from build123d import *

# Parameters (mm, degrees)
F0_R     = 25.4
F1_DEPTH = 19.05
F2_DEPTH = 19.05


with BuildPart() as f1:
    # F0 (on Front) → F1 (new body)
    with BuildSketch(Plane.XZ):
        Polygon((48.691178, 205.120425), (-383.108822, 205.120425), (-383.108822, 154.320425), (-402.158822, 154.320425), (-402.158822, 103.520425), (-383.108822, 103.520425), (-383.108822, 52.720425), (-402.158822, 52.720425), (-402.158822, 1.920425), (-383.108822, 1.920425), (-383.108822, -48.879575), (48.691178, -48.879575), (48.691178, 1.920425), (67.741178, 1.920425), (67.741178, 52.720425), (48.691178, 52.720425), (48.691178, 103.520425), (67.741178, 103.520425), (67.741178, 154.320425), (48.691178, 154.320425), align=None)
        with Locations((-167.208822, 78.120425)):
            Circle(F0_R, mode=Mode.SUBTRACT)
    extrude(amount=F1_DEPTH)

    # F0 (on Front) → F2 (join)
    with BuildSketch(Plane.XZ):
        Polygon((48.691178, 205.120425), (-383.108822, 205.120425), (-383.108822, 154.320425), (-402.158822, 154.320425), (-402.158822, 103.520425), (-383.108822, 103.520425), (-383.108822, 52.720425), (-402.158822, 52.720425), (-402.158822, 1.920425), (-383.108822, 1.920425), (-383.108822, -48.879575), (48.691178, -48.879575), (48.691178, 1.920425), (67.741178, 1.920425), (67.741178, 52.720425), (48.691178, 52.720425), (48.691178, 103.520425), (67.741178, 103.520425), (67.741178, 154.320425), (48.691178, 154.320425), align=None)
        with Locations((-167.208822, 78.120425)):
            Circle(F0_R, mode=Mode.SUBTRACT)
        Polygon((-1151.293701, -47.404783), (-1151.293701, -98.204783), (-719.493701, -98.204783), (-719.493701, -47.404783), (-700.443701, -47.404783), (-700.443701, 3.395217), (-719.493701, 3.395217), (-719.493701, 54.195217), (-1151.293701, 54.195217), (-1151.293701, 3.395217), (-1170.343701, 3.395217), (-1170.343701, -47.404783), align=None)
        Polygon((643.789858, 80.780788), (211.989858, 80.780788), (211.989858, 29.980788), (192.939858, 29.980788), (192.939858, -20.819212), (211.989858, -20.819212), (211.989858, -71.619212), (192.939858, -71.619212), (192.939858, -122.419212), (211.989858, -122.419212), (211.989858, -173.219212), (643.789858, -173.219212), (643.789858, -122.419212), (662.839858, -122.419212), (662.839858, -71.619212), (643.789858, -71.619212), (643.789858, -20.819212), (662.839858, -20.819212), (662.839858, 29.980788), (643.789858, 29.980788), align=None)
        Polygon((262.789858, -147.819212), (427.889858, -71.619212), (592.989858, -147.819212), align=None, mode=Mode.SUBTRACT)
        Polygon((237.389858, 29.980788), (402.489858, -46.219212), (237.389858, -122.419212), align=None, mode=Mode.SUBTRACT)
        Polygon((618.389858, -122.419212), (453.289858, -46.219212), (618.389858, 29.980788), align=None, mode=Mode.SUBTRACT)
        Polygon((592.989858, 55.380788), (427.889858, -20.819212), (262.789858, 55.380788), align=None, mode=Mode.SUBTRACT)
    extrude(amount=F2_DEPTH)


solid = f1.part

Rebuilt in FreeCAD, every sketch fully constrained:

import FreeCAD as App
import Part
import Sketcher

V = App.Vector
Q = App.Units.Quantity

doc = App.newDocument("Part")
params = doc.addObject("Spreadsheet::Sheet", "Params")
for row, (alias, value) in enumerate([
    ("sketch1_diameter", "2 in"),
    ("sketch1_width", "17 in"),
    ("sketch1_height", "2 in"),
    ("sketch1_width2", "0.75 in"),
    ("pad1_length", "0.75 in"),
    ("sketch2_diameter", "2 in"),
    ("sketch2_width", "17 in"),
    ("sketch2_width2", "13 in"),
    ("sketch2_height", "2 in"),
    ("sketch2_width3", "0.75 in"),
    ("pad2_length", "0.75 in"),
], start=1):
    params.set(f"A{row}", alias)
    params.set(f"B{row}", "=" + value)
    params.setAlias(f"B{row}", alias)

body = doc.addObject("PartDesign::Body", "Body")
body.AllowCompound = True

# Sketch on XZ plane
sketch1 = body.newObject("Sketcher::SketchObject", "Sketch")
sketch1.AttachmentSupport = (doc.getObject("XZ_Plane"), [""])
sketch1.MapMode = "FlatFace"
sketch1.addGeometry([
    Part.LineSegment(V(49, 205, 0), V(-383, 205, 0)),  # 0
    Part.LineSegment(V(-383, 205, 0), V(-383, 154, 0)),  # 1
    Part.LineSegment(V(-383, 154, 0), V(-402, 154, 0)),  # 2
    Part.LineSegment(V(-402, 154, 0), V(-402, 104, 0)),  # 3
    Part.LineSegment(V(-402, 104, 0), V(-383, 104, 0)),  # 4
    Part.LineSegment(V(-383, 104, 0), V(-383, 53, 0)),  # 5
    Part.LineSegment(V(-383, 53, 0), V(-402, 53, 0)),  # 6
    Part.LineSegment(V(-402, 53, 0), V(-402, 2, 0)),  # 7
    Part.LineSegment(V(-402, 2, 0), V(-383, 2, 0)),  # 8
    Part.LineSegment(V(-383, 2, 0), V(-383, -49, 0)),  # 9
    Part.LineSegment(V(-383, -49, 0), V(49, -49, 0)),  # 10
    Part.LineSegment(V(49, -49, 0), V(49, 2, 0)),  # 11
    Part.LineSegment(V(49, 2, 0), V(68, 2, 0)),  # 12
    Part.LineSegment(V(68, 2, 0), V(68, 53, 0)),  # 13
    Part.LineSegment(V(68, 53, 0), V(49, 53, 0)),  # 14
    Part.LineSegment(V(49, 53, 0), V(49, 104, 0)),  # 15
    Part.LineSegment(V(49, 104, 0), V(68, 104, 0)),  # 16
    Part.LineSegment(V(68, 104, 0), V(68, 154, 0)),  # 17
    Part.LineSegment(V(68, 154, 0), V(49, 154, 0)),  # 18
    Part.LineSegment(V(49, 154, 0), V(49, 205, 0)),  # 19
    Part.Circle(V(-167, 78, 0), V(0, 0, 1), 25),  # 20
], False)
sketch1.addConstraint([
    Sketcher.Constraint("Coincident", 0, 2, 1, 1),
    Sketcher.Constraint("Coincident", 1, 2, 2, 1),
    Sketcher.Constraint("Coincident", 2, 2, 3, 1),
    Sketcher.Constraint("Coincident", 3, 2, 4, 1),
    Sketcher.Constraint("Coincident", 4, 2, 5, 1),
    Sketcher.Constraint("Coincident", 5, 2, 6, 1),
    Sketcher.Constraint("Coincident", 6, 2, 7, 1),
    Sketcher.Constraint("Coincident", 7, 2, 8, 1),
    Sketcher.Constraint("Coincident", 8, 2, 9, 1),
    Sketcher.Constraint("Coincident", 9, 2, 10, 1),
    Sketcher.Constraint("Coincident", 10, 2, 11, 1),
    Sketcher.Constraint("Coincident", 11, 2, 12, 1),
    Sketcher.Constraint("Coincident", 12, 2, 13, 1),
    Sketcher.Constraint("Coincident", 13, 2, 14, 1),
    Sketcher.Constraint("Coincident", 14, 2, 15, 1),
    Sketcher.Constraint("Coincident", 15, 2, 16, 1),
    Sketcher.Constraint("Coincident", 16, 2, 17, 1),
    Sketcher.Constraint("Coincident", 17, 2, 18, 1),
    Sketcher.Constraint("Coincident", 18, 2, 19, 1),
    Sketcher.Constraint("Coincident", 19, 2, 0, 1),
    Sketcher.Constraint("Horizontal", 0),
    Sketcher.Constraint("Vertical", 1),
    Sketcher.Constraint("Horizontal", 2),
    Sketcher.Constraint("Vertical", 3),
    Sketcher.Constraint("Horizontal", 4),
    Sketcher.Constraint("Vertical", 5),
    Sketcher.Constraint("Horizontal", 6),
    Sketcher.Constraint("Vertical", 7),
    Sketcher.Constraint("Horizontal", 8),
    Sketcher.Constraint("Vertical", 9),
    Sketcher.Constraint("Horizontal", 10),
    Sketcher.Constraint("Vertical", 11),
    Sketcher.Constraint("Horizontal", 12),
    Sketcher.Constraint("Vertical", 13),
    Sketcher.Constraint("Horizontal", 14),
    Sketcher.Constraint("Vertical", 15),
    Sketcher.Constraint("Horizontal", 16),
    Sketcher.Constraint("Vertical", 17),
    Sketcher.Constraint("Horizontal", 18),
    Sketcher.Constraint("Vertical", 19),
    Sketcher.Constraint("Horizontal", 8, 2, 11, 2),
    Sketcher.Constraint("Horizontal", 6, 2, 13, 2),
    Sketcher.Constraint("Horizontal", 4, 2, 15, 2),
    Sketcher.Constraint("Horizontal", 2, 2, 17, 2),
    Sketcher.Constraint("Vertical", 1, 2, 4, 2),
    Sketcher.Constraint("Vertical", 3, 2, 6, 2),
    Sketcher.Constraint("Vertical", 5, 2, 8, 2),
    Sketcher.Constraint("Vertical", 11, 2, 14, 2),
    Sketcher.Constraint("Vertical", 13, 2, 16, 2),
    Sketcher.Constraint("Vertical", 15, 2, 18, 2),
    Sketcher.Constraint("Equal", 8, 12),
    Sketcher.Constraint("Equal", 1, 3),
    Sketcher.Constraint("Equal", 3, 5),
    Sketcher.Constraint("Equal", 5, 7),
    Sketcher.Constraint("Equal", 7, 9),
    Sketcher.Constraint("Diameter", 20, Q("2 in")),
    Sketcher.Constraint("DistanceX", 0, 2, 0, 1, Q("17 in")),
    Sketcher.Constraint("DistanceY", 1, 2, 1, 1, Q("2 in")),
    Sketcher.Constraint("DistanceY", 20, 3, 0, 2, Q("5 in")),
    Sketcher.Constraint("DistanceX", 2, 2, 2, 1, Q("0.75 in")),
    Sketcher.Constraint("DistanceX", 0, 2, 20, 3, Q("8.5 in")),
    Sketcher.Constraint("DistanceX", 20, 3, -1, 1, Q("167.208822 mm")),
    Sketcher.Constraint("DistanceY", -1, 1, 20, 3, Q("78.120425 mm")),
])
sketch1.setExpression("Constraints[55]", "Params.sketch1_diameter")
sketch1.setExpression("Constraints[56]", "Params.sketch1_width")
sketch1.setExpression("Constraints[57]", "Params.sketch1_height")
sketch1.setExpression("Constraints[59]", "Params.sketch1_width2")
pad1 = body.newObject("PartDesign::Pad", "Pad")
pad1.Profile = sketch1
pad1.setExpression("Length", "Params.pad1_length")

# Sketch on XZ plane
sketch2 = body.newObject("Sketcher::SketchObject", "Sketch001")
sketch2.AttachmentSupport = (doc.getObject("XZ_Plane"), [""])
sketch2.MapMode = "FlatFace"
sketch2.addGeometry([
    Part.LineSegment(V(49, 205, 0), V(-383, 205, 0)),  # 0
    Part.LineSegment(V(-383, 205, 0), V(-383, 154, 0)),  # 1
    Part.LineSegment(V(-383, 154, 0), V(-402, 154, 0)),  # 2
    Part.LineSegment(V(-402, 154, 0), V(-402, 104, 0)),  # 3
    Part.LineSegment(V(-402, 104, 0), V(-383, 104, 0)),  # 4
    Part.LineSegment(V(-383, 104, 0), V(-383, 53, 0)),  # 5
    Part.LineSegment(V(-383, 53, 0), V(-402, 53, 0)),  # 6
    Part.LineSegment(V(-402, 53, 0), V(-402, 2, 0)),  # 7
    Part.LineSegment(V(-402, 2, 0), V(-383, 2, 0)),  # 8
    Part.LineSegment(V(-383, 2, 0), V(-383, -49, 0)),  # 9
    Part.LineSegment(V(-383, -49, 0), V(49, -49, 0)),  # 10
    Part.LineSegment(V(49, -49, 0), V(49, 2, 0)),  # 11
    Part.LineSegment(V(49, 2, 0), V(68, 2, 0)),  # 12
    Part.LineSegment(V(68, 2, 0), V(68, 53, 0)),  # 13
    Part.LineSegment(V(68, 53, 0), V(49, 53, 0)),  # 14
    Part.LineSegment(V(49, 53, 0), V(49, 104, 0)),  # 15
    Part.LineSegment(V(49, 104, 0), V(68, 104, 0)),  # 16
    Part.LineSegment(V(68, 104, 0), V(68, 154, 0)),  # 17
    Part.LineSegment(V(68, 154, 0), V(49, 154, 0)),  # 18
    Part.LineSegment(V(49, 154, 0), V(49, 205, 0)),  # 19
    Part.Circle(V(-167, 78, 0), V(0, 0, 1), 25),  # 20
    Part.LineSegment(V(-1151, -47, 0), V(-1151, -98, 0)),  # 21
    Part.LineSegment(V(-1151, -98, 0), V(-719, -98, 0)),  # 22
    Part.LineSegment(V(-719, -98, 0), V(-719, -47, 0)),  # 23
    Part.LineSegment(V(-719, -47, 0), V(-700, -47, 0)),  # 24
    Part.LineSegment(V(-700, -47, 0), V(-700, 3, 0)),  # 25
    Part.LineSegment(V(-700, 3, 0), V(-719, 3, 0)),  # 26
    Part.LineSegment(V(-719, 3, 0), V(-719, 54, 0)),  # 27
    Part.LineSegment(V(-719, 54, 0), V(-1151, 54, 0)),  # 28
    Part.LineSegment(V(-1151, 54, 0), V(-1151, 3, 0)),  # 29
    Part.LineSegment(V(-1151, 3, 0), V(-1170, 3, 0)),  # 30
    Part.LineSegment(V(-1170, 3, 0), V(-1170, -47, 0)),  # 31
    Part.LineSegment(V(-1170, -47, 0), V(-1151, -47, 0)),  # 32
    Part.LineSegment(V(644, 81, 0), V(212, 81, 0)),  # 33
    Part.LineSegment(V(212, 81, 0), V(212, 30, 0)),  # 34
    Part.LineSegment(V(212, 30, 0), V(193, 30, 0)),  # 35
    Part.LineSegment(V(193, 30, 0), V(193, -21, 0)),  # 36
    Part.LineSegment(V(193, -21, 0), V(212, -21, 0)),  # 37
    Part.LineSegment(V(212, -21, 0), V(212, -72, 0)),  # 38
    Part.LineSegment(V(212, -72, 0), V(193, -72, 0)),  # 39
    Part.LineSegment(V(193, -72, 0), V(193, -122, 0)),  # 40
    Part.LineSegment(V(193, -122, 0), V(212, -122, 0)),  # 41
    Part.LineSegment(V(212, -122, 0), V(212, -173, 0)),  # 42
    Part.LineSegment(V(212, -173, 0), V(644, -173, 0)),  # 43
    Part.LineSegment(V(644, -173, 0), V(644, -122, 0)),  # 44
    Part.LineSegment(V(644, -122, 0), V(663, -122, 0)),  # 45
    Part.LineSegment(V(663, -122, 0), V(663, -72, 0)),  # 46
    Part.LineSegment(V(663, -72, 0), V(644, -72, 0)),  # 47
    Part.LineSegment(V(644, -72, 0), V(644, -21, 0)),  # 48
    Part.LineSegment(V(644, -21, 0), V(663, -21, 0)),  # 49
    Part.LineSegment(V(663, -21, 0), V(663, 30, 0)),  # 50
    Part.LineSegment(V(663, 30, 0), V(644, 30, 0)),  # 51
    Part.LineSegment(V(644, 30, 0), V(644, 81, 0)),  # 52
    Part.LineSegment(V(593, -148, 0), V(263, -148, 0)),  # 53
    Part.LineSegment(V(263, -148, 0), V(428, -72, 0)),  # 54
    Part.LineSegment(V(428, -72, 0), V(593, -148, 0)),  # 55
    Part.LineSegment(V(618, 30, 0), V(618, -122, 0)),  # 56
    Part.LineSegment(V(618, -122, 0), V(453, -46, 0)),  # 57
    Part.LineSegment(V(453, -46, 0), V(618, 30, 0)),  # 58
    Part.LineSegment(V(237, -122, 0), V(237, 30, 0)),  # 59
    Part.LineSegment(V(237, 30, 0), V(402, -46, 0)),  # 60
    Part.LineSegment(V(402, -46, 0), V(237, -122, 0)),  # 61
    Part.LineSegment(V(263, 55, 0), V(593, 55, 0)),  # 62
    Part.LineSegment(V(593, 55, 0), V(428, -21, 0)),  # 63
    Part.LineSegment(V(428, -21, 0), V(263, 55, 0)),  # 64
], False)
sketch2.addConstraint([
    Sketcher.Constraint("Coincident", 0, 2, 1, 1),
    Sketcher.Constraint("Coincident", 1, 2, 2, 1),
    Sketcher.Constraint("Coincident", 2, 2, 3, 1),
    Sketcher.Constraint("Coincident", 3, 2, 4, 1),
    Sketcher.Constraint("Coincident", 4, 2, 5, 1),
    Sketcher.Constraint("Coincident", 5, 2, 6, 1),
    Sketcher.Constraint("Coincident", 6, 2, 7, 1),
    Sketcher.Constraint("Coincident", 7, 2, 8, 1),
    Sketcher.Constraint("Coincident", 8, 2, 9, 1),
    Sketcher.Constraint("Coincident", 9, 2, 10, 1),
    Sketcher.Constraint("Coincident", 10, 2, 11, 1),
    Sketcher.Constraint("Coincident", 11, 2, 12, 1),
    Sketcher.Constraint("Coincident", 12, 2, 13, 1),
    Sketcher.Constraint("Coincident", 13, 2, 14, 1),
    Sketcher.Constraint("Coincident", 14, 2, 15, 1),
    Sketcher.Constraint("Coincident", 15, 2, 16, 1),
    Sketcher.Constraint("Coincident", 16, 2, 17, 1),
    Sketcher.Constraint("Coincident", 17, 2, 18, 1),
    Sketcher.Constraint("Coincident", 18, 2, 19, 1),
    Sketcher.Constraint("Coincident", 19, 2, 0, 1),
    Sketcher.Constraint("Coincident", 21, 2, 22, 1),
    Sketcher.Constraint("Coincident", 22, 2, 23, 1),
    Sketcher.Constraint("Coincident", 23, 2, 24, 1),
    Sketcher.Constraint("Coincident", 24, 2, 25, 1),
    Sketcher.Constraint("Coincident", 25, 2, 26, 1),
    Sketcher.Constraint("Coincident", 26, 2, 27, 1),
    Sketcher.Constraint("Coincident", 27, 2, 28, 1),
    Sketcher.Constraint("Coincident", 28, 2, 29, 1),
    Sketcher.Constraint("Coincident", 29, 2, 30, 1),
    Sketcher.Constraint("Coincident", 30, 2, 31, 1),
    Sketcher.Constraint("Coincident", 31, 2, 32, 1),
    Sketcher.Constraint("Coincident", 32, 2, 21, 1),
    Sketcher.Constraint("Coincident", 33, 2, 34, 1),
    Sketcher.Constraint("Coincident", 34, 2, 35, 1),
    Sketcher.Constraint("Coincident", 35, 2, 36, 1),
    Sketcher.Constraint("Coincident", 36, 2, 37, 1),
    Sketcher.Constraint("Coincident", 37, 2, 38, 1),
    Sketcher.Constraint("Coincident", 38, 2, 39, 1),
    Sketcher.Constraint("Coincident", 39, 2, 40, 1),
    Sketcher.Constraint("Coincident", 40, 2, 41, 1),
    Sketcher.Constraint("Coincident", 41, 2, 42, 1),
    Sketcher.Constraint("Coincident", 42, 2, 43, 1),
    Sketcher.Constraint("Coincident", 43, 2, 44, 1),
    Sketcher.Constraint("Coincident", 44, 2, 45, 1),
    Sketcher.Constraint("Coincident", 45, 2, 46, 1),
    Sketcher.Constraint("Coincident", 46, 2, 47, 1),
    Sketcher.Constraint("Coincident", 47, 2, 48, 1),
    Sketcher.Constraint("Coincident", 48, 2, 49, 1),
    Sketcher.Constraint("Coincident", 49, 2, 50, 1),
    Sketcher.Constraint("Coincident", 50, 2, 51, 1),
    Sketcher.Constraint("Coincident", 51, 2, 52, 1),
    Sketcher.Constraint("Coincident", 52, 2, 33, 1),
    Sketcher.Constraint("Coincident", 53, 2, 54, 1),
    Sketcher.Constraint("Coincident", 54, 2, 55, 1),
    Sketcher.Constraint("Coincident", 55, 2, 53, 1),
    Sketcher.Constraint("Coincident", 56, 2, 57, 1),
    Sketcher.Constraint("Coincident", 57, 2, 58, 1),
    Sketcher.Constraint("Coincident", 58, 2, 56, 1),
    Sketcher.Constraint("Coincident", 59, 2, 60, 1),
    Sketcher.Constraint("Coincident", 60, 2, 61, 1),
    Sketcher.Constraint("Coincident", 61, 2, 59, 1),
    Sketcher.Constraint("Coincident", 62, 2, 63, 1),
    Sketcher.Constraint("Coincident", 63, 2, 64, 1),
    Sketcher.Constraint("Coincident", 64, 2, 62, 1),
    Sketcher.Constraint("Horizontal", 0),
    Sketcher.Constraint("Vertical", 1),
    Sketcher.Constraint("Horizontal", 2),
    Sketcher.Constraint("Vertical", 3),
    Sketcher.Constraint("Horizontal", 4),
    Sketcher.Constraint("Vertical", 5),
    Sketcher.Constraint("Horizontal", 6),
    Sketcher.Constraint("Vertical", 7),
    Sketcher.Constraint("Horizontal", 8),
    Sketcher.Constraint("Vertical", 9),
    Sketcher.Constraint("Horizontal", 10),
    Sketcher.Constraint("Vertical", 11),
    Sketcher.Constraint("Horizontal", 12),
    Sketcher.Constraint("Vertical", 13),
    Sketcher.Constraint("Horizontal", 14),
    Sketcher.Constraint("Vertical", 15),
    Sketcher.Constraint("Horizontal", 16),
    Sketcher.Constraint("Vertical", 17),
    Sketcher.Constraint("Horizontal", 18),
    Sketcher.Constraint("Vertical", 19),
    Sketcher.Constraint("Vertical", 21),
    Sketcher.Constraint("Horizontal", 22),
    Sketcher.Constraint("Vertical", 23),
    Sketcher.Constraint("Horizontal", 24),
    Sketcher.Constraint("Vertical", 25),
    Sketcher.Constraint("Horizontal", 26),
    Sketcher.Constraint("Vertical", 27),
    Sketcher.Constraint("Horizontal", 28),
    Sketcher.Constraint("Vertical", 29),
    Sketcher.Constraint("Horizontal", 30),
    Sketcher.Constraint("Vertical", 31),
    Sketcher.Constraint("Horizontal", 32),
    Sketcher.Constraint("Horizontal", 33),
    Sketcher.Constraint("Vertical", 34),
    Sketcher.Constraint("Horizontal", 35),
    Sketcher.Constraint("Vertical", 36),
    Sketcher.Constraint("Horizontal", 37),
    Sketcher.Constraint("Vertical", 38),
    Sketcher.Constraint("Horizontal", 39),
    Sketcher.Constraint("Vertical", 40),
    Sketcher.Constraint("Horizontal", 41),
    Sketcher.Constraint("Vertical", 42),
    Sketcher.Constraint("Horizontal", 43),
    Sketcher.Constraint("Vertical", 44),
    Sketcher.Constraint("Horizontal", 45),
    Sketcher.Constraint("Vertical", 46),
    Sketcher.Constraint("Horizontal", 47),
    Sketcher.Constraint("Vertical", 48),
    Sketcher.Constraint("Horizontal", 49),
    Sketcher.Constraint("Vertical", 50),
    Sketcher.Constraint("Horizontal", 51),
    Sketcher.Constraint("Vertical", 52),
    Sketcher.Constraint("Horizontal", 53),
    Sketcher.Constraint("Vertical", 56),
    Sketcher.Constraint("Vertical", 59),
    Sketcher.Constraint("Horizontal", 62),
    Sketcher.Constraint("Parallel", 55, 57),
    Sketcher.Constraint("Parallel", 54, 58),
    Sketcher.Constraint("Parallel", 57, 60),
    Sketcher.Constraint("Parallel", 58, 61),
    Sketcher.Constraint("Parallel", 61, 63),
    Sketcher.Constraint("Parallel", 60, 64),
    Sketcher.Constraint("Horizontal", 8, 2, 11, 2),
    Sketcher.Constraint("Horizontal", 6, 2, 13, 2),
    Sketcher.Constraint("Horizontal", 4, 2, 15, 2),
    Sketcher.Constraint("Horizontal", 2, 2, 17, 2),
    Sketcher.Constraint("Horizontal", 26, 2, 29, 2),
    Sketcher.Constraint("Horizontal", 24, 2, 31, 2),
    Sketcher.Constraint("Horizontal", 41, 2, 44, 2),
    Sketcher.Constraint("Horizontal", 39, 2, 46, 2),
    Sketcher.Constraint("Horizontal", 37, 2, 48, 2),
    Sketcher.Constraint("Horizontal", 35, 2, 50, 2),
    Sketcher.Constraint("Horizontal", 47, 2, 54, 2),
    Sketcher.Constraint("Horizontal", 45, 2, 56, 2),
    Sketcher.Constraint("Horizontal", 51, 2, 58, 2),
    Sketcher.Constraint("Horizontal", 58, 2, 59, 2),
    Sketcher.Constraint("Horizontal", 57, 2, 60, 2),
    Sketcher.Constraint("Horizontal", 56, 2, 61, 2),
    Sketcher.Constraint("Horizontal", 49, 2, 63, 2),
    Sketcher.Constraint("Vertical", 1, 2, 4, 2),
    Sketcher.Constraint("Vertical", 3, 2, 6, 2),
    Sketcher.Constraint("Vertical", 5, 2, 8, 2),
    Sketcher.Constraint("Vertical", 11, 2, 14, 2),
    Sketcher.Constraint("Vertical", 13, 2, 16, 2),
    Sketcher.Constraint("Vertical", 15, 2, 18, 2),
    Sketcher.Constraint("Vertical", 23, 2, 26, 2),
    Sketcher.Constraint("Vertical", 21, 2, 28, 2),
    Sketcher.Constraint("Vertical", 34, 2, 37, 2),
    Sketcher.Constraint("Vertical", 36, 2, 39, 2),
    Sketcher.Constraint("Vertical", 38, 2, 41, 2),
    Sketcher.Constraint("Vertical", 44, 2, 47, 2),
    Sketcher.Constraint("Vertical", 46, 2, 49, 2),
    Sketcher.Constraint("Vertical", 48, 2, 51, 2),
    Sketcher.Constraint("Vertical", 55, 2, 62, 2),
    Sketcher.Constraint("Vertical", 54, 2, 63, 2),
    Sketcher.Constraint("Equal", 8, 12),
    Sketcher.Constraint("Equal", 10, 22),
    Sketcher.Constraint("Equal", 18, 24),
    Sketcher.Constraint("Equal", 26, 30),
    Sketcher.Constraint("Equal", 28, 33),
    Sketcher.Constraint("Equal", 32, 35),
    Sketcher.Constraint("Equal", 41, 45),
    Sketcher.Constraint("Equal", 1, 3),
    Sketcher.Constraint("Equal", 3, 5),
    Sketcher.Constraint("Equal", 5, 7),
    Sketcher.Constraint("Equal", 7, 9),
    Sketcher.Constraint("Equal", 19, 21),
    Sketcher.Constraint("Equal", 23, 25),
    Sketcher.Constraint("Equal", 25, 27),
    Sketcher.Constraint("Equal", 31, 34),
    Sketcher.Constraint("Equal", 34, 36),
    Sketcher.Constraint("Equal", 36, 38),
    Sketcher.Constraint("Equal", 38, 40),
    Sketcher.Constraint("Equal", 40, 42),
    Sketcher.Constraint("Equal", 55, 57),
    Sketcher.Constraint("Diameter", 20, Q("2 in")),
    Sketcher.Constraint("DistanceX", 0, 2, 0, 1, Q("17 in")),
    Sketcher.Constraint("DistanceX", 53, 2, 53, 1, Q("13 in")),
    Sketcher.Constraint("DistanceY", 1, 2, 1, 1, Q("2 in")),
    Sketcher.Constraint("DistanceX", 2, 2, 2, 1, Q("0.75 in")),
    Sketcher.Constraint("DistanceX", 21, 2, -1, 1, Q("1151.293701 mm")),
    Sketcher.Constraint("DistanceX", 20, 3, -1, 1, Q("167.208822 mm")),
    Sketcher.Constraint("DistanceX", 0, 2, -1, 1, Q("383.108822 mm")),
    Sketcher.Constraint("DistanceX", -1, 1, 33, 2, Q("211.989858 mm")),
    Sketcher.Constraint("DistanceY", -1, 1, 33, 2, Q("80.780788 mm")),
    Sketcher.Constraint("DistanceX", -1, 1, 53, 2, Q("262.789858 mm")),
    Sketcher.Constraint("DistanceX", -1, 1, 56, 2, Q("618.389858 mm")),
    Sketcher.Constraint("DistanceX", -1, 1, 59, 2, Q("237.389858 mm")),
    Sketcher.Constraint("DistanceY", -1, 1, 20, 3, Q("78.120425 mm")),
    Sketcher.Constraint("DistanceY", -1, 1, 0, 2, Q("205.120425 mm")),
    Sketcher.Constraint("DistanceY", 21, 2, -1, 1, Q("98.204783 mm")),
])
sketch2.setExpression("Constraints[179]", "Params.sketch2_diameter")
sketch2.setExpression("Constraints[180]", "Params.sketch2_width")
sketch2.setExpression("Constraints[181]", "Params.sketch2_width2")
sketch2.setExpression("Constraints[182]", "Params.sketch2_height")
sketch2.setExpression("Constraints[183]", "Params.sketch2_width3")
pad2 = body.newObject("PartDesign::Pad", "Pad001")
pad2.Profile = sketch2
pad2.setExpression("Length", "Params.pad2_length")

doc.recompute()
